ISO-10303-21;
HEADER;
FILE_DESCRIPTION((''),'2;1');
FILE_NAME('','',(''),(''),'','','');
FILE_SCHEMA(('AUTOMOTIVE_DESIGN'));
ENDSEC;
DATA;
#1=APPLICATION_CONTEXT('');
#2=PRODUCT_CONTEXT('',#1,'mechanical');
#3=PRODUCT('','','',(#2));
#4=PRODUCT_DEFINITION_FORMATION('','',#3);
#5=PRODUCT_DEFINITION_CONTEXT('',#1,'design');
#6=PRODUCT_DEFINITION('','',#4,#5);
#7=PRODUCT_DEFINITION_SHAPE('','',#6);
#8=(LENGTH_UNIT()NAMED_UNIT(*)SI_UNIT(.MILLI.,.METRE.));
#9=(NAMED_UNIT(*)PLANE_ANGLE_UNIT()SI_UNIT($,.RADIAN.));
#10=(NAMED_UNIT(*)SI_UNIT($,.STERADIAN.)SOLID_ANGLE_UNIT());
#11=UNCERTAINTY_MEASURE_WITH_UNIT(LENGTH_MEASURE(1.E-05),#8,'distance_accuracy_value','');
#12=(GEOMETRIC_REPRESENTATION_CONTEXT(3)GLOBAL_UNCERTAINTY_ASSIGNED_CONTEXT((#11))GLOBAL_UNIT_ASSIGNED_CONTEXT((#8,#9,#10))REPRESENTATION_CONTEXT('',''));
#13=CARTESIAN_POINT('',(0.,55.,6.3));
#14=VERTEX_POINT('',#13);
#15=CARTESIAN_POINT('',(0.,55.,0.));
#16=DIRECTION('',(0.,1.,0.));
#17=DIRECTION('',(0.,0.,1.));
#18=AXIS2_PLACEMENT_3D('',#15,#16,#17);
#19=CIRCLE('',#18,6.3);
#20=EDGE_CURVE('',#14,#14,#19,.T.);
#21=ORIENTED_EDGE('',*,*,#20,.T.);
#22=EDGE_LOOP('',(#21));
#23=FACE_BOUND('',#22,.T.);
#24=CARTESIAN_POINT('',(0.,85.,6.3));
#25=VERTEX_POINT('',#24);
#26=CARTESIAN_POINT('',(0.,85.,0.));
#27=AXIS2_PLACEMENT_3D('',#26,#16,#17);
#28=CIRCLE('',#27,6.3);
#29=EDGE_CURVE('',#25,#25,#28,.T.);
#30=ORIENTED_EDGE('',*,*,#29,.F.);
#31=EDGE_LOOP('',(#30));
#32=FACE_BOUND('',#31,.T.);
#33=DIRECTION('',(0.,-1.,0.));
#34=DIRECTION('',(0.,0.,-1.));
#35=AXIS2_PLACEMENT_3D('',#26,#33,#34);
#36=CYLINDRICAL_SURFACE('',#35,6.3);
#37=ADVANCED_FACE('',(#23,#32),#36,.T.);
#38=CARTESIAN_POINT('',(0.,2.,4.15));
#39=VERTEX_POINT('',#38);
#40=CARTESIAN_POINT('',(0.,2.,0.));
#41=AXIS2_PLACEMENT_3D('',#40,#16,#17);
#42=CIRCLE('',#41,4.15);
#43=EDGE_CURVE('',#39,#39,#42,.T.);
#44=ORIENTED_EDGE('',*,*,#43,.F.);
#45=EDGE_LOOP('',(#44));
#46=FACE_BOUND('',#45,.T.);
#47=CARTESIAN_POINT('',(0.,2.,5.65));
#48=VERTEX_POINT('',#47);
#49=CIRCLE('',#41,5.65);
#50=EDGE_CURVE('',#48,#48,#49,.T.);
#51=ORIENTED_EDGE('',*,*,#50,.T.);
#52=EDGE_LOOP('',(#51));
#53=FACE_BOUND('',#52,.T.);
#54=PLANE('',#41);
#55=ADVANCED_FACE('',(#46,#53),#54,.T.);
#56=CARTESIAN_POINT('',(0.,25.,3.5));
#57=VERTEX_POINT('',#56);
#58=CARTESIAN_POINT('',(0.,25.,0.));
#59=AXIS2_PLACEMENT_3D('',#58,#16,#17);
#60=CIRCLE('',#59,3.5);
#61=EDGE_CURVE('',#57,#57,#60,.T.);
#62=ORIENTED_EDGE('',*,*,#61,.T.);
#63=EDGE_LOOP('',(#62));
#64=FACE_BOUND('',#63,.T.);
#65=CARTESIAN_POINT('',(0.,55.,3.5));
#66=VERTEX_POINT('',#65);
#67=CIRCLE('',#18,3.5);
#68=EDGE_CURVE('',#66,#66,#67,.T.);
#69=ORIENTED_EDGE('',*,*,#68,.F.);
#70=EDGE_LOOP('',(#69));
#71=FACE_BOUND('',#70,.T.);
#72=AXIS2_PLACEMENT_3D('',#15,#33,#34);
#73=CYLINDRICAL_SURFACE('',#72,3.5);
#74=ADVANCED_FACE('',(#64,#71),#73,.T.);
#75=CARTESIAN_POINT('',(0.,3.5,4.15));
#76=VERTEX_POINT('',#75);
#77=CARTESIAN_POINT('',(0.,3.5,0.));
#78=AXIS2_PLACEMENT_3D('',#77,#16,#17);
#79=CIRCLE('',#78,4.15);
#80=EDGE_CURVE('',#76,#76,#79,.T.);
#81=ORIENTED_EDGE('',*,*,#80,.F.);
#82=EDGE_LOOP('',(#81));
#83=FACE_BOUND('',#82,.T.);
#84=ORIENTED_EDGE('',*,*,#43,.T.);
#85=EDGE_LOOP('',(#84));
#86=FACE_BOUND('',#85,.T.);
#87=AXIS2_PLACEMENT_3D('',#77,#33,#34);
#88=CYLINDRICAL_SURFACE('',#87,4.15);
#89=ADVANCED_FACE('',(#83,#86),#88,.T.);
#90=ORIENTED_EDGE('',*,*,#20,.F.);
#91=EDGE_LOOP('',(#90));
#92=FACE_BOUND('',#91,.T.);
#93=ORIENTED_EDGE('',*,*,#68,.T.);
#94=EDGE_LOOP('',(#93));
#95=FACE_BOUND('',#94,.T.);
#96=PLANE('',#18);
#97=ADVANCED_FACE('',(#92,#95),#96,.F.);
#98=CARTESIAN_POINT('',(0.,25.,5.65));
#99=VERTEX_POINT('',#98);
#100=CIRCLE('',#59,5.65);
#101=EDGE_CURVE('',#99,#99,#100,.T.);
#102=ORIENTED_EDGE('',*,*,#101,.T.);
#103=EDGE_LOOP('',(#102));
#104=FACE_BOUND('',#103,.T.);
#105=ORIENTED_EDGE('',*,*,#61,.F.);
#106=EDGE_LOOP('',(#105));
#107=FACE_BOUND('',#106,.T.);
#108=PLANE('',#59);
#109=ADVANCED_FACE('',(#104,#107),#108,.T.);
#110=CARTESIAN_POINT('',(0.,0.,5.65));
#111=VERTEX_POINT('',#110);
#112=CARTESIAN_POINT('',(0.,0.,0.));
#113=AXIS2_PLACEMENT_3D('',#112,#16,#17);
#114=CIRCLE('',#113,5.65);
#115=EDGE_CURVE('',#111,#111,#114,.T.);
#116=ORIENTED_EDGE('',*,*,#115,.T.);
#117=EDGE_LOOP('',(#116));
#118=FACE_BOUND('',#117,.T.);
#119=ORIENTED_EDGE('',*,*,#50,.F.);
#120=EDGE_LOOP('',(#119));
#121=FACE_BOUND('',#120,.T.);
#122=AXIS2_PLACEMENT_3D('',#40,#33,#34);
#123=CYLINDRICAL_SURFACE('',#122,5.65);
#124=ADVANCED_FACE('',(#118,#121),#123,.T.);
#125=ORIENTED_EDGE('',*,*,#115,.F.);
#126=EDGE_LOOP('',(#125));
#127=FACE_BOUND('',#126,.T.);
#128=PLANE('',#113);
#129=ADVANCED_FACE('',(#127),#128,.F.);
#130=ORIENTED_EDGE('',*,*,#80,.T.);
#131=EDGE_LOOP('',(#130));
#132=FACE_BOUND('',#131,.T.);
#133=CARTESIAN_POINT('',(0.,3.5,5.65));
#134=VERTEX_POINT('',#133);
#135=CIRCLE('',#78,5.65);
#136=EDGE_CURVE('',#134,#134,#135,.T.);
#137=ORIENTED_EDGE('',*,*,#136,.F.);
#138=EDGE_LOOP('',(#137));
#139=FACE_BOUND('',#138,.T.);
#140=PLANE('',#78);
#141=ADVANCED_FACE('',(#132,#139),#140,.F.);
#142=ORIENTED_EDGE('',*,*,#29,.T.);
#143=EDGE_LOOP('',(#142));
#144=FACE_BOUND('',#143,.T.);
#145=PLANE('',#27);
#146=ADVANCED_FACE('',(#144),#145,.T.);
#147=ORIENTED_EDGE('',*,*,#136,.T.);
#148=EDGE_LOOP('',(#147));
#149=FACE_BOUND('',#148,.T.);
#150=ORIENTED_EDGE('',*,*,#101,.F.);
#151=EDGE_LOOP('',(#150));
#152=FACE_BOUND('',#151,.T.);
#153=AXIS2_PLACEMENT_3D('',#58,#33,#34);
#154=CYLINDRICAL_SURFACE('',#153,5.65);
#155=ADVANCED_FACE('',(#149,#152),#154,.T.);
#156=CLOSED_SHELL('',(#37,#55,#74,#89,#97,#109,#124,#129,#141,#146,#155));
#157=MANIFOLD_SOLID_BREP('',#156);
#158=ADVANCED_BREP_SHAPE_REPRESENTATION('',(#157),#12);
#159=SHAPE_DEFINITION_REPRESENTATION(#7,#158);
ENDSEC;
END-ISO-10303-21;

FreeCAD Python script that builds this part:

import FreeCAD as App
import Part
import Sketcher

doc = App.newDocument("Part")
params = doc.addObject("Spreadsheet::Sheet", "Params")
for row, (alias, value) in enumerate([
    ("sketch1_diameter", "11.3 mm"),
    ("pad1_length", "2 mm"),
    ("sketch2_diameter", "8.3 mm"),
    ("pad2_length", "1.5 mm"),
    ("sketch3_diameter", "11.3 mm"),
    ("pad3_length", "21.5 mm"),
    ("sketch4_diameter", "7 mm"),
    ("pad4_length", "30 mm"),
    ("sketch5_diameter", "12.6 mm"),
    ("pad5_length", "30 mm"),
], start=1):
    params.set(f"A{row}", alias)
    params.set(f"B{row}", "=" + value)
    params.setAlias(f"B{row}", alias)

body = doc.addObject("PartDesign::Body", "Body")

sketch1 = body.newObject("Sketcher::SketchObject", "Sketch")
sketch1.AttachmentSupport = (doc.getObject("XZ_Plane"), [""])
sketch1.MapMode = "FlatFace"
sketch1.addGeometry(Part.Circle(App.Vector(0, 0, 0), App.Vector(0, 0, 1), 6), False)
sketch1.addConstraint([
    Sketcher.Constraint("Coincident", 0, 3, -1, 1),
    Sketcher.Constraint("Diameter", 0, 11.3),
])
sketch1.setExpression("Constraints[1]", "Params.sketch1_diameter")
pad1 = body.newObject("PartDesign::Pad", "Pad")
pad1.Profile = sketch1
pad1.setExpression("Length", "Params.pad1_length")
pad1.Reversed = True

sketch2 = body.newObject("Sketcher::SketchObject", "Sketch001")
sketch2.AttachmentSupport = (doc.getObject("XZ_Plane"), [""])
sketch2.MapMode = "FlatFace"
sketch2.AttachmentOffset = App.Placement(App.Vector(0, 0, -2), App.Rotation())
sketch2.addGeometry(Part.Circle(App.Vector(0, 0, 0), App.Vector(0, 0, 1), 4.2), False)
sketch2.addConstraint([
    Sketcher.Constraint("Coincident", 0, 3, -1, 1),
    Sketcher.Constraint("Diameter", 0, 8.3),
])
sketch2.setExpression("Constraints[1]", "Params.sketch2_diameter")
pad2 = body.newObject("PartDesign::Pad", "Pad001")
pad2.Profile = sketch2
pad2.setExpression("Length", "Params.pad2_length")
pad2.Reversed = True

sketch3 = body.newObject("Sketcher::SketchObject", "Sketch002")
sketch3.AttachmentSupport = (doc.getObject("XZ_Plane"), [""])
sketch3.MapMode = "FlatFace"
sketch3.AttachmentOffset = App.Placement(App.Vector(0, 0, -3.5), App.Rotation())
sketch3.addGeometry(Part.Circle(App.Vector(0, 0, 0), App.Vector(0, 0, 1), 6), False)
sketch3.addConstraint([
    Sketcher.Constraint("Coincident", 0, 3, -1, 1),
    Sketcher.Constraint("Diameter", 0, 11.3),
])
sketch3.setExpression("Constraints[1]", "Params.sketch3_diameter")
pad3 = body.newObject("PartDesign::Pad", "Pad002")
pad3.Profile = sketch3
pad3.setExpression("Length", "Params.pad3_length")
pad3.Reversed = True

sketch4 = body.newObject("Sketcher::SketchObject", "Sketch003")
sketch4.AttachmentSupport = (doc.getObject("XZ_Plane"), [""])
sketch4.MapMode = "FlatFace"
sketch4.AttachmentOffset = App.Placement(App.Vector(0, 0, -25), App.Rotation())
sketch4.addGeometry(Part.Circle(App.Vector(0, 0, 0), App.Vector(0, 0, 1), 3.5), False)
sketch4.addConstraint([
    Sketcher.Constraint("Coincident", 0, 3, -1, 1),
    Sketcher.Constraint("Diameter", 0, 7.0),
])
sketch4.setExpression("Constraints[1]", "Params.sketch4_diameter")
pad4 = body.newObject("PartDesign::Pad", "Pad003")
pad4.Profile = sketch4
pad4.setExpression("Length", "Params.pad4_length")
pad4.Reversed = True

sketch5 = body.newObject("Sketcher::SketchObject", "Sketch004")
sketch5.AttachmentSupport = (doc.getObject("XZ_Plane"), [""])
sketch5.MapMode = "FlatFace"
sketch5.AttachmentOffset = App.Placement(App.Vector(0, 0, -55), App.Rotation())
sketch5.addGeometry(Part.Circle(App.Vector(0, 0, 0), App.Vector(0, 0, 1), 6), False)
sketch5.addConstraint([
    Sketcher.Constraint("Coincident", 0, 3, -1, 1),
    Sketcher.Constraint("Diameter", 0, 12.6),
])
sketch5.setExpression("Constraints[1]", "Params.sketch5_diameter")
pad5 = body.newObject("PartDesign::Pad", "Pad004")
pad5.Profile = sketch5
pad5.setExpression("Length", "Params.pad5_length")
pad5.Reversed = True

doc.recompute()
